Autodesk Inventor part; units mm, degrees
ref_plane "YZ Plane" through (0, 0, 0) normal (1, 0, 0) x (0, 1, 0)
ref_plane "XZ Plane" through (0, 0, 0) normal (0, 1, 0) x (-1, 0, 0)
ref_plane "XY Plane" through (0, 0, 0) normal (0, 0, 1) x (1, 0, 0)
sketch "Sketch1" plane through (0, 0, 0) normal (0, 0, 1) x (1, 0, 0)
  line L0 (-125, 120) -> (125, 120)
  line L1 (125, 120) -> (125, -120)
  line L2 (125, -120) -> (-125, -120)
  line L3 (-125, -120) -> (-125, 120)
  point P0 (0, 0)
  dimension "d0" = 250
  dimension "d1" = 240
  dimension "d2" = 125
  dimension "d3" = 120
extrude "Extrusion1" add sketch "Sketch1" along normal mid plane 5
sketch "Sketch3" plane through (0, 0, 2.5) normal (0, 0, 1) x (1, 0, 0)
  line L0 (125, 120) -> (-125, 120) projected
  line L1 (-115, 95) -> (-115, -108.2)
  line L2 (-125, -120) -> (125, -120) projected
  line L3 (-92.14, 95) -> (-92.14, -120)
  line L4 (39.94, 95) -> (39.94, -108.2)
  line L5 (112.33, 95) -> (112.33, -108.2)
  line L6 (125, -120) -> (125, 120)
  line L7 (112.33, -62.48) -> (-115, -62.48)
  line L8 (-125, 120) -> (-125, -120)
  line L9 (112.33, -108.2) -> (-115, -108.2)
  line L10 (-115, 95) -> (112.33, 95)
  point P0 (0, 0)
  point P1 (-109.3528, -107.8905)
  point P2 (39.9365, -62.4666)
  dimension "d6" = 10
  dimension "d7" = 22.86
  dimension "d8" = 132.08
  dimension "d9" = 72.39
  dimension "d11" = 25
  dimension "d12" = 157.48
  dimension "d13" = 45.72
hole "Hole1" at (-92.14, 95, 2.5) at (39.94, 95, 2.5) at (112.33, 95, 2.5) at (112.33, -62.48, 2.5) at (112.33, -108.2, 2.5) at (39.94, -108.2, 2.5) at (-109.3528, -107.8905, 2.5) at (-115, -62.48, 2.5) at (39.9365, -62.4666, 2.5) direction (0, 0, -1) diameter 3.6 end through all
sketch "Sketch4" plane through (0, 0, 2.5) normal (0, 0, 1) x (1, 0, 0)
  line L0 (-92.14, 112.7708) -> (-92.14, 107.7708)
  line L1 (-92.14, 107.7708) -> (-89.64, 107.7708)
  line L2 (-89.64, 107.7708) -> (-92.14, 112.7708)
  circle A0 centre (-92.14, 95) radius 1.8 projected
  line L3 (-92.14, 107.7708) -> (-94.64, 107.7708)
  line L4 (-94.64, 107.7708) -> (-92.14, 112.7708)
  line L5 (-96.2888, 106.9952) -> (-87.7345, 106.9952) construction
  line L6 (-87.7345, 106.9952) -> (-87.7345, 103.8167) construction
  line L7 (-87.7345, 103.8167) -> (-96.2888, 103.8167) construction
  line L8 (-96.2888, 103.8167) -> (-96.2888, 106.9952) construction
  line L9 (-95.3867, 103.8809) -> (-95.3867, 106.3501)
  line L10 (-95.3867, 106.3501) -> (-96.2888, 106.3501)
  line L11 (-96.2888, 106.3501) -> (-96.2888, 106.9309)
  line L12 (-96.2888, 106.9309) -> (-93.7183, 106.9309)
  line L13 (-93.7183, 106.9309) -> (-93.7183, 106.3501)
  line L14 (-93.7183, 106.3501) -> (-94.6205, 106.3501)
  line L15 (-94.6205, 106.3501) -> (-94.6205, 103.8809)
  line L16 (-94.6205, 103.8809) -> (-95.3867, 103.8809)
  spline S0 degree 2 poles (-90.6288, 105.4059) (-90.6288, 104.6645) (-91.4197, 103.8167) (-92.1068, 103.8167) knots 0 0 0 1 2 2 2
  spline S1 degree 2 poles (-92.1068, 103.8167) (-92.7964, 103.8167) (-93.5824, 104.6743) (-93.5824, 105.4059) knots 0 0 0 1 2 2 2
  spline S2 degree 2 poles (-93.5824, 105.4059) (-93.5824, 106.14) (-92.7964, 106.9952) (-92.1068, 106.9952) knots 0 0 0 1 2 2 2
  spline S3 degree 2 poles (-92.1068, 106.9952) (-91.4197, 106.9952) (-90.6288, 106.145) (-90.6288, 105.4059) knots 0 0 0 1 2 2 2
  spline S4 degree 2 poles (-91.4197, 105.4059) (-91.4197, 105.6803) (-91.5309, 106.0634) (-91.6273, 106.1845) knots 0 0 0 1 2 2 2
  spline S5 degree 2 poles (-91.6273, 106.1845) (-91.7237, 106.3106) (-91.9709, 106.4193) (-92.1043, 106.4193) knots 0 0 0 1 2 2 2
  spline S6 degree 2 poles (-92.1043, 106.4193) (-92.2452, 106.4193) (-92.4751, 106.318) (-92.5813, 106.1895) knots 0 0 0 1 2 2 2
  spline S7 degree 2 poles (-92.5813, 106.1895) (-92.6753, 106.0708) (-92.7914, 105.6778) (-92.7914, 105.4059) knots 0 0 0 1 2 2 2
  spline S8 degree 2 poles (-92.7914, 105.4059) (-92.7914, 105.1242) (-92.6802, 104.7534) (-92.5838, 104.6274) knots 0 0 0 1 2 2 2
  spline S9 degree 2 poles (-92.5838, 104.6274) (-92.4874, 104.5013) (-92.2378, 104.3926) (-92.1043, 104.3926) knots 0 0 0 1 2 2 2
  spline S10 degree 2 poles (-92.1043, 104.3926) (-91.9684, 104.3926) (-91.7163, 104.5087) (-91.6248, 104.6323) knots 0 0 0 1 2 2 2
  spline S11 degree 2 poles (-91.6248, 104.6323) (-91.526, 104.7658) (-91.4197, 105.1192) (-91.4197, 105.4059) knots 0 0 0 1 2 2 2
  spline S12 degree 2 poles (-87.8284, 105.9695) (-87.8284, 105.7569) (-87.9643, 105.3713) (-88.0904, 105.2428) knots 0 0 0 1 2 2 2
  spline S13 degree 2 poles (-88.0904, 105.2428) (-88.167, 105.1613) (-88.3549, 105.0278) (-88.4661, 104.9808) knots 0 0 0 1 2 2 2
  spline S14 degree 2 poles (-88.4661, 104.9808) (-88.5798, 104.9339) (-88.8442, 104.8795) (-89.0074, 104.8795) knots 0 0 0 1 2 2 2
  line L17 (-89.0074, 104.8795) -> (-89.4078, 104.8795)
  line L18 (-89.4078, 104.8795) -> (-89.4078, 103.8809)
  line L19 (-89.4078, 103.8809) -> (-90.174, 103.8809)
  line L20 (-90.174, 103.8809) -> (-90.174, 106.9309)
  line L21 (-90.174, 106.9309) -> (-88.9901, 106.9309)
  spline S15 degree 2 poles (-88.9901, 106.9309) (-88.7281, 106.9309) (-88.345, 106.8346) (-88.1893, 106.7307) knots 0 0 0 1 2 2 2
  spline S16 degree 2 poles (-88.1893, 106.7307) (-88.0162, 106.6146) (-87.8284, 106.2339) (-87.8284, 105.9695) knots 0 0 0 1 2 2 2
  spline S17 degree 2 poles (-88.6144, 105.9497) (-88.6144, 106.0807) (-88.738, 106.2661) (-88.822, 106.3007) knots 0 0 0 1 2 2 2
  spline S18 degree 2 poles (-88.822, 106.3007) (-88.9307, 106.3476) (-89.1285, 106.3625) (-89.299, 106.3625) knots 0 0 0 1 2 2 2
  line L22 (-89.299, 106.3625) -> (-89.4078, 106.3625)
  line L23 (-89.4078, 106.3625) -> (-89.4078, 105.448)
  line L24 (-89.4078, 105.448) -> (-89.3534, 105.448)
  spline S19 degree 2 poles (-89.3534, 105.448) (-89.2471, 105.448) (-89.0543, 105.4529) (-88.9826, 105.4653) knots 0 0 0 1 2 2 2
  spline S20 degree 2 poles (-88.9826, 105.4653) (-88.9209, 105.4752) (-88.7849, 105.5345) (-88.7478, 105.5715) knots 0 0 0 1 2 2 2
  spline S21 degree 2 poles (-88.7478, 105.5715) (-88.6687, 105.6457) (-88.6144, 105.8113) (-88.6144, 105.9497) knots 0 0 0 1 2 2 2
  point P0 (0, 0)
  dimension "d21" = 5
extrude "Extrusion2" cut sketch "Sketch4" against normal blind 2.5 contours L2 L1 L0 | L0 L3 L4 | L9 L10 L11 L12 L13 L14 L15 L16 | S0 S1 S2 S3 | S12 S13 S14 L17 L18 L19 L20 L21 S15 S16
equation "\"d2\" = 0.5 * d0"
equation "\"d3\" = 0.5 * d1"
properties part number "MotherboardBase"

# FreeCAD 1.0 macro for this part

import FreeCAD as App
import Part
import Sketcher
Q = App.Units.Quantity


def add_polygon(sketch, points):
    """Adds a closed chain of lines whose ends are joined by coincident constraints."""
    first, n = sketch.GeometryCount, len(points)
    for a, b in zip(points, points[1:] + points[:1]):
        sketch.addGeometry(Part.LineSegment(App.Vector(*a, 0), App.Vector(*b, 0)), False)
    for i in range(n):
        sketch.addConstraint(Sketcher.Constraint("Coincident", first + i, 2, first + (i + 1) % n, 1))

doc = App.newDocument("Part")
body = doc.addObject("PartDesign::Body", "Body")

sketch1 = body.newObject("Sketcher::SketchObject", "Sketch")
sketch1.AttachmentSupport = (doc.getObject("XY_Plane"), [""])
sketch1.MapMode = "FlatFace"
add_polygon(sketch1, [(125, 120), (-125, 120), (-125, -120), (125, -120)])
sketch1.addConstraint([
    Sketcher.Constraint("Horizontal", 0),
    Sketcher.Constraint("Vertical", 1),
    Sketcher.Constraint("Horizontal", 2),
    Sketcher.Constraint("Vertical", 3),
    Sketcher.Constraint("Symmetric", 0, 2, 2, 2, -1, 1),
    Sketcher.Constraint("DistanceX", 0, 2, 0, 1, Q("250 mm")),
    Sketcher.Constraint("DistanceY", 1, 2, 1, 1, Q("240 mm")),
])
pad1 = body.newObject("PartDesign::Pad", "Pad")
pad1.Profile = sketch1
pad1.Length = 5
pad1.Midplane = True

sketch2 = body.newObject("Sketcher::SketchObject", "Sketch001")
sketch2.AttachmentSupport = (doc.getObject("XY_Plane"), [""])
sketch2.MapMode = "FlatFace"
sketch2.AttachmentOffset = App.Placement(App.Vector(0, 0, 2.5), App.Rotation())
sketch2.addGeometry([
    Part.Circle(App.Vector(-92.1, 95, 0), App.Vector(0, 0, 1), 1.8),
    Part.Circle(App.Vector(39.9, 95, 0), App.Vector(0, 0, 1), 1.8),
    Part.Circle(App.Vector(112.3, 95, 0), App.Vector(0, 0, 1), 1.8),
    Part.Circle(App.Vector(112.3, -62.5, 0), App.Vector(0, 0, 1), 1.8),
    Part.Circle(App.Vector(112.3, -108.2, 0), App.Vector(0, 0, 1), 1.8),
    Part.Circle(App.Vector(39.9, -108.2, 0), App.Vector(0, 0, 1), 1.8),
    Part.Circle(App.Vector(-109.4, -107.9, 0), App.Vector(0, 0, 1), 1.8),
    Part.Circle(App.Vector(-115, -62.5, 0), App.Vector(0, 0, 1), 1.8),
    Part.Circle(App.Vector(39.9, -62.5, 0), App.Vector(0, 0, 1), 1.8),
], False)
sketch2.addConstraint([
    Sketcher.Constraint("Equal", 0, 1),
    Sketcher.Constraint("Equal", 1, 2),
    Sketcher.Constraint("Equal", 2, 3),
    Sketcher.Constraint("Equal", 3, 4),
    Sketcher.Constraint("Equal", 4, 5),
    Sketcher.Constraint("Equal", 5, 6),
    Sketcher.Constraint("Equal", 6, 7),
    Sketcher.Constraint("Equal", 7, 8),
    Sketcher.Constraint("Horizontal", 0, 3, 1, 3),
    Sketcher.Constraint("Horizontal", 1, 3, 2, 3),
    Sketcher.Constraint("Horizontal", 4, 3, 5, 3),
    Sketcher.Constraint("Horizontal", 3, 3, 7, 3),
    Sketcher.Constraint("Vertical", 2, 3, 3, 3),
    Sketcher.Constraint("Vertical", 3, 3, 4, 3),
    Sketcher.Constraint("Vertical", 1, 3, 5, 3),
    Sketcher.Constraint("Diameter", 0, Q("3.6 mm")),
    Sketcher.Constraint("DistanceY", -1, 1, 0, 3, Q("95 mm")),
    Sketcher.Constraint("DistanceX", 7, 3, -1, 1, Q("115 mm")),
    Sketcher.Constraint("DistanceY", 4, 3, -1, 1, Q("108.2 mm")),
    Sketcher.Constraint("DistanceX", 0, 3, -1, 1, Q("92.14 mm")),
    Sketcher.Constraint("DistanceX", -1, 1, 1, 3, Q("39.94 mm")),
    Sketcher.Constraint("DistanceX", -1, 1, 2, 3, Q("112.33 mm")),
    Sketcher.Constraint("DistanceY", 3, 3, -1, 1, Q("62.48 mm")),
    Sketcher.Constraint("DistanceY", 6, 3, 8, 3, Q("45.424 mm")),
    Sketcher.Constraint("DistanceX", 6, 3, -1, 1, Q("109.3528 mm")),
    Sketcher.Constraint("DistanceY", 6, 3, -1, 1, Q("107.8905 mm")),
    Sketcher.Constraint("DistanceX", -1, 1, 8, 3, Q("39.9365 mm")),
])
doc.recompute()
hole = body.newObject("PartDesign::Hole", "Hole")
hole.Profile = sketch2
hole.ThreadType = "None"
hole.Diameter = 3.6
hole.DepthType = "ThroughAll"

sketch3 = body.newObject("Sketcher::SketchObject", "Sketch002")
sketch3.AttachmentSupport = (doc.getObject("XY_Plane"), [""])
sketch3.MapMode = "FlatFace"
sketch3.AttachmentOffset = App.Placement(App.Vector(0, 0, 2.5), App.Rotation())
add_polygon(sketch3, [(-89.64, 107.7708), (-92.14, 112.7708), (-94.64, 107.7708)])
add_polygon(sketch3, [(-95.3867, 106.3501), (-95.3867, 103.8809), (-94.6205, 103.8809), (-94.6205, 106.3501), (-93.7183, 106.3501), (-93.7183, 106.9309), (-96.2888, 106.9309), (-96.2888, 106.3501)])
sketch3.addGeometry(Part.BSplineCurve([App.Vector(-90.6288, 105.4059, 0), App.Vector(-90.6288, 104.6645, 0), App.Vector(-91.4197, 103.8167, 0), App.Vector(-92.1068, 103.8167, 0)], [3, 1, 3], [0, 1, 2], False, 2, [1, 1, 1, 1], False), False)
sketch3.addGeometry(Part.BSplineCurve([App.Vector(-92.1068, 106.9952, 0), App.Vector(-91.4197, 106.9952, 0), App.Vector(-90.6288, 106.145, 0), App.Vector(-90.6288, 105.4059, 0)], [3, 1, 3], [0, 1, 2], False, 2, [1, 1, 1, 1], False), False)
sketch3.addGeometry(Part.BSplineCurve([App.Vector(-93.5824, 105.4059, 0), App.Vector(-93.5824, 106.14, 0), App.Vector(-92.7964, 106.9952, 0), App.Vector(-92.1068, 106.9952, 0)], [3, 1, 3], [0, 1, 2], False, 2, [1, 1, 1, 1], False), False)
sketch3.addGeometry(Part.BSplineCurve([App.Vector(-92.1068, 103.8167, 0), App.Vector(-92.7964, 103.8167, 0), App.Vector(-93.5824, 104.6743, 0), App.Vector(-93.5824, 105.4059, 0)], [3, 1, 3], [0, 1, 2], False, 2, [1, 1, 1, 1], False), False)
sketch3.addGeometry(Part.BSplineCurve([App.Vector(-91.4197, 105.4059, 0), App.Vector(-91.4197, 105.6803, 0), App.Vector(-91.5309, 106.0634, 0), App.Vector(-91.6273, 106.1845, 0)], [3, 1, 3], [0, 1, 2], False, 2, [1, 1, 1, 1], False), False)
sketch3.addGeometry(Part.BSplineCurve([App.Vector(-91.6248, 104.6323, 0), App.Vector(-91.526, 104.7658, 0), App.Vector(-91.4197, 105.1192, 0), App.Vector(-91.4197, 105.4059, 0)], [3, 1, 3], [0, 1, 2], False, 2, [1, 1, 1, 1], False), False)
sketch3.addGeometry(Part.BSplineCurve([App.Vector(-92.1043, 104.3926, 0), App.Vector(-91.9684, 104.3926, 0), App.Vector(-91.7163, 104.5087, 0), App.Vector(-91.6248, 104.6323, 0)], [3, 1, 3], [0, 1, 2], False, 2, [1, 1, 1, 1], False), False)
sketch3.addGeometry(Part.BSplineCurve([App.Vector(-92.5838, 104.6274, 0), App.Vector(-92.4874, 104.5013, 0), App.Vector(-92.2378, 104.3926, 0), App.Vector(-92.1043, 104.3926, 0)], [3, 1, 3], [0, 1, 2], False, 2, [1, 1, 1, 1], False), False)
sketch3.addGeometry(Part.BSplineCurve([App.Vector(-92.7914, 105.4059, 0), App.Vector(-92.7914, 105.1242, 0), App.Vector(-92.6802, 104.7534, 0), App.Vector(-92.5838, 104.6274, 0)], [3, 1, 3], [0, 1, 2], False, 2, [1, 1, 1, 1], False), False)
sketch3.addGeometry(Part.BSplineCurve([App.Vector(-92.5813, 106.1895, 0), App.Vector(-92.6753, 106.0708, 0), App.Vector(-92.7914, 105.6778, 0), App.Vector(-92.7914, 105.4059, 0)], [3, 1, 3], [0, 1, 2], False, 2, [1, 1, 1, 1], False), False)
sketch3.addGeometry(Part.BSplineCurve([App.Vector(-92.1043, 106.4193, 0), App.Vector(-92.2452, 106.4193, 0), App.Vector(-92.4751, 106.318, 0), App.Vector(-92.5813, 106.1895, 0)], [3, 1, 3], [0, 1, 2], False, 2, [1, 1, 1, 1], False), False)
sketch3.addGeometry(Part.BSplineCurve([App.Vector(-91.6273, 106.1845, 0), App.Vector(-91.7237, 106.3106, 0), App.Vector(-91.9709, 106.4193, 0), App.Vector(-92.1043, 106.4193, 0)], [3, 1, 3], [0, 1, 2], False, 2, [1, 1, 1, 1], False), False)
sketch3.addGeometry(Part.BSplineCurve([App.Vector(-87.8284, 105.9695, 0), App.Vector(-87.8284, 105.7569, 0), App.Vector(-87.9643, 105.3713, 0), App.Vector(-88.0904, 105.2428, 0)], [3, 1, 3], [0, 1, 2], False, 2, [1, 1, 1, 1], False), False)
sketch3.addGeometry(Part.BSplineCurve([App.Vector(-88.1893, 106.7307, 0), App.Vector(-88.0162, 106.6146, 0), App.Vector(-87.8284, 106.2339, 0), App.Vector(-87.8284, 105.9695, 0)], [3, 1, 3], [0, 1, 2], False, 2, [1, 1, 1, 1], False), False)
sketch3.addGeometry(Part.BSplineCurve([App.Vector(-88.9901, 106.9309, 0), App.Vector(-88.7281, 106.9309, 0), App.Vector(-88.345, 106.8346, 0), App.Vector(-88.1893, 106.7307, 0)], [3, 1, 3], [0, 1, 2], False, 2, [1, 1, 1, 1], False), False)
sketch3.addGeometry(Part.LineSegment(App.Vector(-88.9901, 106.9309, 0), App.Vector(-90.174, 106.9309, 0)), False)
sketch3.addGeometry(Part.LineSegment(App.Vector(-90.174, 106.9309, 0), App.Vector(-90.174, 103.8809, 0)), False)
sketch3.addGeometry(Part.LineSegment(App.Vector(-90.174, 103.8809, 0), App.Vector(-89.4078, 103.8809, 0)), False)
sketch3.addGeometry(Part.LineSegment(App.Vector(-89.4078, 103.8809, 0), App.Vector(-89.4078, 104.8795, 0)), False)
sketch3.addGeometry(Part.LineSegment(App.Vector(-89.4078, 104.8795, 0), App.Vector(-89.0074, 104.8795, 0)), False)
sketch3.addGeometry(Part.BSplineCurve([App.Vector(-88.4661, 104.9808, 0), App.Vector(-88.5798, 104.9339, 0), App.Vector(-88.8442, 104.8795, 0), App.Vector(-89.0074, 104.8795, 0)], [3, 1, 3], [0, 1, 2], False, 2, [1, 1, 1, 1], False), False)
sketch3.addGeometry(Part.BSplineCurve([App.Vector(-88.0904, 105.2428, 0), App.Vector(-88.167, 105.1613, 0), App.Vector(-88.3549, 105.0278, 0), App.Vector(-88.4661, 104.9808, 0)], [3, 1, 3], [0, 1, 2], False, 2, [1, 1, 1, 1], False), False)
sketch3.addGeometry(Part.BSplineCurve([App.Vector(-88.6144, 105.9497, 0), App.Vector(-88.6144, 106.0807, 0), App.Vector(-88.738, 106.2661, 0), App.Vector(-88.822, 106.3007, 0)], [3, 1, 3], [0, 1, 2], False, 2, [1, 1, 1, 1], False), False)
sketch3.addGeometry(Part.BSplineCurve([App.Vector(-88.7478, 105.5715, 0), App.Vector(-88.6687, 105.6457, 0), App.Vector(-88.6144, 105.8113, 0), App.Vector(-88.6144, 105.9497, 0)], [3, 1, 3], [0, 1, 2], False, 2, [1, 1, 1, 1], False), False)
sketch3.addGeometry(Part.BSplineCurve([App.Vector(-88.9826, 105.4653, 0), App.Vector(-88.9209, 105.4752, 0), App.Vector(-88.7849, 105.5345, 0), App.Vector(-88.7478, 105.5715, 0)], [3, 1, 3], [0, 1, 2], False, 2, [1, 1, 1, 1], False), False)
sketch3.addGeometry(Part.BSplineCurve([App.Vector(-89.3534, 105.448, 0), App.Vector(-89.2471, 105.448, 0), App.Vector(-89.0543, 105.4529, 0), App.Vector(-88.9826, 105.4653, 0)], [3, 1, 3], [0, 1, 2], False, 2, [1, 1, 1, 1], False), False)
sketch3.addGeometry(Part.LineSegment(App.Vector(-89.3534, 105.448, 0), App.Vector(-89.4078, 105.448, 0)), False)
sketch3.addGeometry(Part.LineSegment(App.Vector(-89.4078, 105.448, 0), App.Vector(-89.4078, 106.3625, 0)), False)
sketch3.addGeometry(Part.LineSegment(App.Vector(-89.4078, 106.3625, 0), App.Vector(-89.299, 106.3625, 0)), False)
sketch3.addGeometry(Part.BSplineCurve([App.Vector(-88.822, 106.3007, 0), App.Vector(-88.9307, 106.3476, 0), App.Vector(-89.1285, 106.3625, 0), App.Vector(-89.299, 106.3625, 0)], [3, 1, 3], [0, 1, 2], False, 2, [1, 1, 1, 1], False), False)
sketch3.addConstraint([
    Sketcher.Constraint("Block", 11),
    Sketcher.Constraint("Block", 12),
    Sketcher.Constraint("Block", 13),
    Sketcher.Constraint("Block", 14),
    Sketcher.Constraint("Block", 15),
    Sketcher.Constraint("Block", 16),
    Sketcher.Constraint("Block", 17),
    Sketcher.Constraint("Block", 18),
    Sketcher.Constraint("Block", 19),
    Sketcher.Constraint("Block", 20),
    Sketcher.Constraint("Block", 21),
    Sketcher.Constraint("Block", 22),
    Sketcher.Constraint("Block", 23),
    Sketcher.Constraint("Block", 24),
    Sketcher.Constraint("Block", 25),
    Sketcher.Constraint("Block", 31),
    Sketcher.Constraint("Block", 32),
    Sketcher.Constraint("Block", 33),
    Sketcher.Constraint("Block", 34),
    Sketcher.Constraint("Block", 35),
    Sketcher.Constraint("Block", 36),
    Sketcher.Constraint("Block", 40),
    Sketcher.Constraint("Coincident", 25, 1, 26, 1),
    Sketcher.Constraint("Coincident", 26, 2, 27, 1),
    Sketcher.Constraint("Coincident", 27, 2, 28, 1),
    Sketcher.Constraint("Coincident", 28, 2, 29, 1),
    Sketcher.Constraint("Coincident", 29, 2, 30, 1),
    Sketcher.Constraint("Coincident", 30, 2, 31, 2),
    Sketcher.Constraint("Coincident", 36, 1, 37, 1),
    Sketcher.Constraint("Coincident", 37, 2, 38, 1),
    Sketcher.Constraint("Coincident", 38, 2, 39, 1),
    Sketcher.Constraint("Coincident", 39, 2, 40, 2),
    Sketcher.Constraint("Horizontal", 2),
    Sketcher.Constraint("Vertical", 3),
    Sketcher.Constraint("Horizontal", 4),
    Sketcher.Constraint("Vertical", 5),
    Sketcher.Constraint("Horizontal", 6),
    Sketcher.Constraint("Vertical", 7),
    Sketcher.Constraint("Horizontal", 8),
    Sketcher.Constraint("Vertical", 9),
    Sketcher.Constraint("Horizontal", 10),
    Sketcher.Constraint("Horizontal", 26),
    Sketcher.Constraint("Vertical", 27),
    Sketcher.Constraint("Horizontal", 28),
    Sketcher.Constraint("Vertical", 29),
    Sketcher.Constraint("Horizontal", 30),
    Sketcher.Constraint("Horizontal", 37),
    Sketcher.Constraint("Vertical", 38),
    Sketcher.Constraint("Horizontal", 39),
    Sketcher.Constraint("Horizontal", 6, 2, 9, 2),
    Sketcher.Constraint("Horizontal", 8, 2, 26, 2),
    Sketcher.Constraint("Horizontal", 4, 2, 27, 2),
    Sketcher.Constraint("Vertical", 29, 2, 37, 2),
    Sketcher.Constraint("Equal", 6, 10),
    Sketcher.Constraint("Equal", 4, 28),
    Sketcher.Constraint("Equal", 0, 1),
    Sketcher.Constraint("DistanceX", 2, 1, 2, 2, Q("5 mm")),
    Sketcher.Constraint("DistanceY", 1, 2, 0, 2, Q("5 mm")),
    Sketcher.Constraint("DistanceY", 27, 2, 27, 1, Q("3.05 mm")),
    Sketcher.Constraint("DistanceX", 10, 1, 10, 2, Q("0.902 mm")),
    Sketcher.Constraint("DistanceX", 26, 2, 26, 1, Q("1.184 mm")),
    Sketcher.Constraint("DistanceX", 0, 2, -1, 1, Q("92.14 mm")),
    Sketcher.Constraint("DistanceY", -1, 1, 5, 2, Q("106.35 mm")),
    Sketcher.Constraint("DistanceY", 3, 2, 1, 2, Q("3.89 mm")),
    Sketcher.Constraint("DistanceX", 4, 1, 4, 2, Q("0.7662 mm")),
    Sketcher.Constraint("DistanceX", 3, 2, -1, 1, Q("95.3867 mm")),
])
pocket1 = body.newObject("PartDesign::Pocket", "Pocket")
pocket1.Profile = sketch3
pocket1.Length = 2.5

doc.recompute()
